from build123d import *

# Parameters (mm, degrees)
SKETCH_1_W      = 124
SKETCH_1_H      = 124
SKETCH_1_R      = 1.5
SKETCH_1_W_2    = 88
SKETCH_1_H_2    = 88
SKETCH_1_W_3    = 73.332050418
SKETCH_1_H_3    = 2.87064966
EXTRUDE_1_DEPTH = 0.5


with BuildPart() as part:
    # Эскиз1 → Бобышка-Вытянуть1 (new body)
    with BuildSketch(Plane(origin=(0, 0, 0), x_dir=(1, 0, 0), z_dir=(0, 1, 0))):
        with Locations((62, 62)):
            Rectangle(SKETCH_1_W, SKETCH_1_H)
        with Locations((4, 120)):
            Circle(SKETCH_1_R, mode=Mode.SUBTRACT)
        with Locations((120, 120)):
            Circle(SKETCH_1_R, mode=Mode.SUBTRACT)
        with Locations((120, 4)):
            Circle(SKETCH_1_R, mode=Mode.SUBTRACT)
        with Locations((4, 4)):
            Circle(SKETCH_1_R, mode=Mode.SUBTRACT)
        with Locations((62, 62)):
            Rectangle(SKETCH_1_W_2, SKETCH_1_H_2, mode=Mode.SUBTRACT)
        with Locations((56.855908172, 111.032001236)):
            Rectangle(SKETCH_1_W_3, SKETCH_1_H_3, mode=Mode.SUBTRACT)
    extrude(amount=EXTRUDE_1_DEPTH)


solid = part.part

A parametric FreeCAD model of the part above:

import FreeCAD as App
import Part
import Sketcher
from FreeCAD import Vector
Q = App.Units.Quantity


def add_polygon(sketch, points):
    """Adds a closed chain of lines whose ends are joined by coincident constraints."""
    first, n = sketch.GeometryCount, len(points)
    for a, b in zip(points, points[1:] + points[:1]):
        sketch.addGeometry(Part.LineSegment(App.Vector(*a, 0), App.Vector(*b, 0)), False)
    for i in range(n):
        sketch.addConstraint(Sketcher.Constraint("Coincident", first + i, 2, first + (i + 1) % n, 1))

doc = App.newDocument("Part")
params = doc.addObject("Spreadsheet::Sheet", "Params")
for row, (alias, value) in enumerate([
    ("sketch1_diameter", "3 mm"),
    ("sketch1_width", "124 mm"),
    ("sketch1_width2", "88 mm"),
    ("pad1_length", "0.5 mm"),
], start=1):
    params.set(f"A{row}", alias)
    params.set(f"B{row}", "=" + value)
    params.setAlias(f"B{row}", alias)

body = doc.addObject("PartDesign::Body", "Body")

sketch1 = body.newObject("Sketcher::SketchObject", "Sketch")
sketch1.AttachmentSupport = (doc.getObject("XZ_Plane"), [""])
sketch1.MapMode = "FlatFace"
add_polygon(sketch1, [(0, -124), (0, 0), (124, 0), (124, -124)])
sketch1.addGeometry(Part.Circle(Vector(4, -4, 0), Vector(0, 0, 1), 1.5), False)
sketch1.addGeometry(Part.Circle(Vector(120, -4, 0), Vector(0, 0, 1), 1.5), False)
sketch1.addGeometry(Part.Circle(Vector(4, -120, 0), Vector(0, 0, 1), 1.5), False)
add_polygon(sketch1, [(93.521933, -109.596676), (20.189883, -109.596676), (20.189883, -112.467326), (93.521933, -112.467326)])
add_polygon(sketch1, [(106, -18), (18, -18), (18, -106), (106, -106)])
sketch1.addGeometry(Part.Circle(Vector(120, -120, 0), Vector(0, 0, 1), 1.5), False)
sketch1.addConstraint([
    Sketcher.Constraint("Vertical", 0),
    Sketcher.Constraint("Horizontal", 1),
    Sketcher.Constraint("Vertical", 2),
    Sketcher.Constraint("Horizontal", 3),
    Sketcher.Constraint("Horizontal", 7),
    Sketcher.Constraint("Vertical", 8),
    Sketcher.Constraint("Horizontal", 9),
    Sketcher.Constraint("Vertical", 10),
    Sketcher.Constraint("Horizontal", 11),
    Sketcher.Constraint("Vertical", 12),
    Sketcher.Constraint("Horizontal", 13),
    Sketcher.Constraint("Vertical", 14),
    Sketcher.Constraint("Coincident", 0, 2, -1, 1),
    Sketcher.Constraint("Equal", 4, 5),
    Sketcher.Constraint("Equal", 5, 6),
    Sketcher.Constraint("Equal", 6, 15),
    Sketcher.Constraint("Horizontal", 4, 3, 5, 3),
    Sketcher.Constraint("Horizontal", 6, 3, 15, 3),
    Sketcher.Constraint("Vertical", 4, 3, 6, 3),
    Sketcher.Constraint("Vertical", 5, 3, 15, 3),
    Sketcher.Constraint("Equal", 3, 0),
    Sketcher.Constraint("Equal", 13, 12),
    Sketcher.Constraint("Diameter", 4, Q("3 mm")),
    Sketcher.Constraint("DistanceX", 1, 1, 1, 2, Q("124 mm")),
    Sketcher.Constraint("DistanceX", 11, 2, 11, 1, Q("88 mm")),
    Sketcher.Constraint("DistanceX", -1, 1, 4, 3, Q("4 mm")),
    Sketcher.Constraint("DistanceY", 4, 3, -1, 1, Q("4 mm")),
    Sketcher.Constraint("DistanceX", -1, 1, 5, 3, Q("120 mm")),
    Sketcher.Constraint("DistanceY", 6, 3, -1, 1, Q("120 mm")),
    Sketcher.Constraint("DistanceX", -1, 1, 11, 2, Q("18 mm")),
    Sketcher.Constraint("DistanceY", 11, 2, -1, 1, Q("18 mm")),
    Sketcher.Constraint("DistanceX", 7, 2, 7, 1, Q("73.33205 mm")),
    Sketcher.Constraint("DistanceY", 8, 2, 8, 1, Q("2.87065 mm")),
    Sketcher.Constraint("DistanceX", -1, 1, 7, 2, Q("20.189883 mm")),
    Sketcher.Constraint("DistanceY", 7, 2, -1, 1, Q("109.596676 mm")),
])
sketch1.setExpression("Constraints[34]", "Params.sketch1_diameter")
sketch1.setExpression("Constraints[35]", "Params.sketch1_width")
sketch1.setExpression("Constraints[36]", "Params.sketch1_width2")
pad1 = body.newObject("PartDesign::Pad", "Pad")
pad1.Profile = sketch1
pad1.setExpression("Length", "Params.pad1_length")
pad1.Reversed = True

doc.recompute()
